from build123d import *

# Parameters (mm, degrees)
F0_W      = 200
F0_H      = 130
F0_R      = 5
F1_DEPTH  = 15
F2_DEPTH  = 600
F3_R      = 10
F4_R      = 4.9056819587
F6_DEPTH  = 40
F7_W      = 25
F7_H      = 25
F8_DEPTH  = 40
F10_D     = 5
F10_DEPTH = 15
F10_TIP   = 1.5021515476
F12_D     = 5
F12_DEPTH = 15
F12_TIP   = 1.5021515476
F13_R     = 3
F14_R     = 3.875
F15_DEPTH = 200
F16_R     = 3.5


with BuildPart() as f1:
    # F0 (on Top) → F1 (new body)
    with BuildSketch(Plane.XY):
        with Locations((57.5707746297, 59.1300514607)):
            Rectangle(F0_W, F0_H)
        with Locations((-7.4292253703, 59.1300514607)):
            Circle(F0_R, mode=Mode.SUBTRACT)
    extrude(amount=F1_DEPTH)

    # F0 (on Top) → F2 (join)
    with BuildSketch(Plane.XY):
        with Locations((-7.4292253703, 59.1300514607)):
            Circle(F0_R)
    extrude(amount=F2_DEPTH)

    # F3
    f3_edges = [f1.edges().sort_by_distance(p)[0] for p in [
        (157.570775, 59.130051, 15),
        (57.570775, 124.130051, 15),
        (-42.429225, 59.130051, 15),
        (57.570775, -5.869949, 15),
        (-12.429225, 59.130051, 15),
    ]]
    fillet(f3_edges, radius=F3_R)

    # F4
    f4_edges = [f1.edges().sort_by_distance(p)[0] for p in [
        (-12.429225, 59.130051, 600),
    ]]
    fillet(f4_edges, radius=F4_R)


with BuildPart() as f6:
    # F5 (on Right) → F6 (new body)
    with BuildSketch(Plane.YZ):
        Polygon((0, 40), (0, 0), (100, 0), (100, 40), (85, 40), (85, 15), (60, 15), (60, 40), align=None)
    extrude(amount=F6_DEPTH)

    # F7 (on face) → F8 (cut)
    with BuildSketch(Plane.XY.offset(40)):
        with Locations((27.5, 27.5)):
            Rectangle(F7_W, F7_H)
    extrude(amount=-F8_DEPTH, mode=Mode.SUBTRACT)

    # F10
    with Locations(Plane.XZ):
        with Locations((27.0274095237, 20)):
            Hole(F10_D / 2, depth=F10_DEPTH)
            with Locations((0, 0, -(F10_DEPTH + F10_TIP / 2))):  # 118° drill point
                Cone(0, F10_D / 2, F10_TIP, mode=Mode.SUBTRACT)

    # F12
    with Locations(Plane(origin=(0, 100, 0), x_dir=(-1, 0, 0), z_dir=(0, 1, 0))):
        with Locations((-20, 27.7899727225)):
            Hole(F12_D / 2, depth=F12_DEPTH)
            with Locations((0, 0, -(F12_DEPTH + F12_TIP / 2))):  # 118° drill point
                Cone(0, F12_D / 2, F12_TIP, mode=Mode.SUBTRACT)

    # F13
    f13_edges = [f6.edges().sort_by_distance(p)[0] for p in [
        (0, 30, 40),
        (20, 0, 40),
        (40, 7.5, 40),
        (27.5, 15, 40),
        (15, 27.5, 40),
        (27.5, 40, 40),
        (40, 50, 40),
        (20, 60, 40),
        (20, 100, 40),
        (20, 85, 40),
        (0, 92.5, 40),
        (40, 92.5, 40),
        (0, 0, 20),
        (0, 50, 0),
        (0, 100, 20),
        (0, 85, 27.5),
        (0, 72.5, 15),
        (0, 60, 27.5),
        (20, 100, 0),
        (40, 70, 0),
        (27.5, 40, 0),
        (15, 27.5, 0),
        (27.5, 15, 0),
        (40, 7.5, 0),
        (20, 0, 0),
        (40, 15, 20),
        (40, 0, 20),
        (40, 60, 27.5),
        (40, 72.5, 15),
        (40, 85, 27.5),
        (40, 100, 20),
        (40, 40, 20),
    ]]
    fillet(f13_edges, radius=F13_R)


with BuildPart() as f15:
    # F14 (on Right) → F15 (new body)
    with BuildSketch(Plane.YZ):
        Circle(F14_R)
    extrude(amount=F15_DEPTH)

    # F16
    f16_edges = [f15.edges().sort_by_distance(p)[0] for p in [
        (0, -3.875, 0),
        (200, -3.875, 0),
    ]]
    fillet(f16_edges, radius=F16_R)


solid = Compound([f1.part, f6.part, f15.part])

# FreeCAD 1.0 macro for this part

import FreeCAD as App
import Part
import Sketcher

V = App.Vector
Q = App.Units.Quantity


def edges_at(feature, points):
    """Names of the edges that pass closest to the given points."""
    edges = feature.Shape.Edges
    near = lambda p: min(range(len(edges)), key=lambda i: edges[i].distToShape(Part.Vertex(*p))[0])
    return sorted({f"Edge{near(p) + 1}" for p in points})

doc = App.newDocument("Part")
body = doc.addObject("PartDesign::Body", "Body")

# Sketch on XY plane
sketch1 = doc.addObject("Sketcher::SketchObject", "Sketch")
body.addObject(sketch1)
sketch1.AttachmentSupport = (doc.XY_Plane, [""])
sketch1.MapMode = "FlatFace"
sketch1.addGeometry(Part.LineSegment(V(-42, 124, 0), V(-42, -6, 0)), False)
sketch1.addGeometry(Part.LineSegment(V(-42, -6, 0), V(158, -6, 0)), False)
sketch1.addGeometry(Part.LineSegment(V(158, -6, 0), V(158, 124, 0)), False)
sketch1.addGeometry(Part.LineSegment(V(158, 124, 0), V(-42, 124, 0)), False)
sketch1.addGeometry(Part.Circle(V(-7, 59, 0), V(0, 0, 1), 5), False)
sketch1.addConstraint(Sketcher.Constraint("Coincident", 0, 2, 1, 1))
sketch1.addConstraint(Sketcher.Constraint("Coincident", 1, 2, 2, 1))
sketch1.addConstraint(Sketcher.Constraint("Coincident", 2, 2, 3, 1))
sketch1.addConstraint(Sketcher.Constraint("Coincident", 3, 2, 0, 1))
sketch1.addConstraint(Sketcher.Constraint("Vertical", 0))
sketch1.addConstraint(Sketcher.Constraint("Horizontal", 1))
sketch1.addConstraint(Sketcher.Constraint("Vertical", 2))
sketch1.addConstraint(Sketcher.Constraint("Horizontal", 3))
sketch1.addConstraint(Sketcher.Constraint("Diameter", 4, Q("10 mm")))
sketch1.addConstraint(Sketcher.Constraint("DistanceX", 1, 1, 1, 2, Q("200 mm")))
sketch1.addConstraint(Sketcher.Constraint("DistanceY", 0, 2, 0, 1, Q("130 mm")))
sketch1.addConstraint(Sketcher.Constraint("DistanceX", 0, 2, 4, 3, Q("35 mm")))
sketch1.addConstraint(Sketcher.Constraint("DistanceY", 0, 2, 4, 3, Q("65 mm")))
sketch1.addConstraint(Sketcher.Constraint("DistanceY", -1, 1, 4, 3, Q("59.130051 mm")))
sketch1.addConstraint(Sketcher.Constraint("DistanceX", 4, 3, -1, 1, Q("7.429225 mm")))
pad1 = doc.addObject("PartDesign::Pad", "Pad")
body.addObject(pad1)
pad1.Profile = sketch1
pad1.Length = 15

# Sketch on XY plane
sketch2 = doc.addObject("Sketcher::SketchObject", "Sketch001")
body.addObject(sketch2)
sketch2.AttachmentSupport = (doc.XY_Plane, [""])
sketch2.MapMode = "FlatFace"
sketch2.addGeometry(Part.Circle(V(-7, 59, 0), V(0, 0, 1), 5), False)
sketch2.addConstraint(Sketcher.Constraint("Diameter", 0, Q("10 mm")))
sketch2.addConstraint(Sketcher.Constraint("DistanceY", -1, 1, 0, 3, Q("59.130051 mm")))
sketch2.addConstraint(Sketcher.Constraint("DistanceX", 0, 3, -1, 1, Q("7.429225 mm")))
pad2 = doc.addObject("PartDesign::Pad", "Pad001")
body.addObject(pad2)
pad2.Profile = sketch2
pad2.Length = 600
doc.recompute()

fillet = doc.addObject("PartDesign::Fillet", "Fillet")
body.addObject(fillet)
fillet.Base = (pad2, edges_at(pad2, [
    (157.571, 59.13, 15),
    (57.571, 124.13, 15),
    (-42.429, 59.13, 15),
    (57.571, -5.87, 15),
    (-12.429, 59.13, 15),
]))
fillet.Radius = 10
doc.recompute()

fillet2 = doc.addObject("PartDesign::Fillet", "Fillet001")
body.addObject(fillet2)
fillet2.Base = (fillet, edges_at(fillet, [(-12.429, 59.13, 600)]))
fillet2.Radius = 4.905682
body2 = doc.addObject("PartDesign::Body", "Body001")

# Sketch on YZ plane
sketch3 = doc.addObject("Sketcher::SketchObject", "Sketch002")
body2.addObject(sketch3)
sketch3.AttachmentSupport = (doc.getObject("YZ_Plane001"), [""])
sketch3.MapMode = "FlatFace"
sketch3.addGeometry(Part.LineSegment(V(0, 40, 0), V(0, 0, 0)), False)
sketch3.addGeometry(Part.LineSegment(V(0, 0, 0), V(100, 0, 0)), False)
sketch3.addGeometry(Part.LineSegment(V(100, 0, 0), V(100, 40, 0)), False)
sketch3.addGeometry(Part.LineSegment(V(100, 40, 0), V(85, 40, 0)), False)
sketch3.addGeometry(Part.LineSegment(V(85, 40, 0), V(85, 15, 0)), False)
sketch3.addGeometry(Part.LineSegment(V(85, 15, 0), V(60, 15, 0)), False)
sketch3.addGeometry(Part.LineSegment(V(60, 15, 0), V(60, 40, 0)), False)
sketch3.addGeometry(Part.LineSegment(V(60, 40, 0), V(0, 40, 0)), False)
sketch3.addConstraint(Sketcher.Constraint("Coincident", 0, 2, 1, 1))
sketch3.addConstraint(Sketcher.Constraint("Coincident", 1, 2, 2, 1))
sketch3.addConstraint(Sketcher.Constraint("Coincident", 2, 2, 3, 1))
sketch3.addConstraint(Sketcher.Constraint("Coincident", 3, 2, 4, 1))
sketch3.addConstraint(Sketcher.Constraint("Coincident", 4, 2, 5, 1))
sketch3.addConstraint(Sketcher.Constraint("Coincident", 5, 2, 6, 1))
sketch3.addConstraint(Sketcher.Constraint("Coincident", 6, 2, 7, 1))
sketch3.addConstraint(Sketcher.Constraint("Coincident", 7, 2, 0, 1))
sketch3.addConstraint(Sketcher.Constraint("Vertical", 0))
sketch3.addConstraint(Sketcher.Constraint("Horizontal", 1))
sketch3.addConstraint(Sketcher.Constraint("Vertical", 2))
sketch3.addConstraint(Sketcher.Constraint("Horizontal", 3))
sketch3.addConstraint(Sketcher.Constraint("Vertical", 4))
sketch3.addConstraint(Sketcher.Constraint("Horizontal", 5))
sketch3.addConstraint(Sketcher.Constraint("Vertical", 6))
sketch3.addConstraint(Sketcher.Constraint("Horizontal", 7))
sketch3.addConstraint(Sketcher.Constraint("Coincident", 0, 2, -1, 1))
sketch3.addConstraint(Sketcher.Constraint("Horizontal", 3, 2, 6, 2))
sketch3.addConstraint(Sketcher.Constraint("Equal", 5, 4))
sketch3.addConstraint(Sketcher.Constraint("DistanceX", 1, 1, 1, 2, Q("100 mm")))
sketch3.addConstraint(Sketcher.Constraint("DistanceX", 3, 2, 3, 1, Q("15 mm")))
sketch3.addConstraint(Sketcher.Constraint("DistanceX", 5, 2, 5, 1, Q("25 mm")))
sketch3.addConstraint(Sketcher.Constraint("DistanceY", 0, 2, 0, 1, Q("40 mm")))
pad3 = doc.addObject("PartDesign::Pad", "Pad002")
body2.addObject(pad3)
pad3.Profile = sketch3
pad3.Length = 40

# Sketch on XY plane
sketch4 = doc.addObject("Sketcher::SketchObject", "Sketch003")
body2.addObject(sketch4)
sketch4.AttachmentSupport = (doc.getObject("XY_Plane001"), [""])
sketch4.MapMode = "FlatFace"
sketch4.AttachmentOffset = App.Placement(V(0, 0, 40), App.Rotation())
sketch4.addGeometry(Part.LineSegment(V(15, 40, 0), V(15, 15, 0)), False)
sketch4.addGeometry(Part.LineSegment(V(15, 15, 0), V(40, 15, 0)), False)
sketch4.addGeometry(Part.LineSegment(V(40, 15, 0), V(40, 40, 0)), False)
sketch4.addGeometry(Part.LineSegment(V(40, 40, 0), V(15, 40, 0)), False)
sketch4.addConstraint(Sketcher.Constraint("Coincident", 0, 2, 1, 1))
sketch4.addConstraint(Sketcher.Constraint("Coincident", 1, 2, 2, 1))
sketch4.addConstraint(Sketcher.Constraint("Coincident", 2, 2, 3, 1))
sketch4.addConstraint(Sketcher.Constraint("Coincident", 3, 2, 0, 1))
sketch4.addConstraint(Sketcher.Constraint("Vertical", 0))
sketch4.addConstraint(Sketcher.Constraint("Horizontal", 1))
sketch4.addConstraint(Sketcher.Constraint("Vertical", 2))
sketch4.addConstraint(Sketcher.Constraint("Horizontal", 3))
sketch4.addConstraint(Sketcher.Constraint("Equal", 3, 0))
sketch4.addConstraint(Sketcher.Constraint("DistanceX", 1, 1, 1, 2, Q("25 mm")))
sketch4.addConstraint(Sketcher.Constraint("DistanceX", -1, 1, 0, 2, Q("15 mm")))
sketch4.addConstraint(Sketcher.Constraint("DistanceY", -1, 1, 0, 2, Q("15 mm")))
pocket1 = doc.addObject("PartDesign::Pocket", "Pocket")
body2.addObject(pocket1)
pocket1.Profile = sketch4
pocket1.Length = 40

# Sketch on XZ plane
sketch5 = doc.addObject("Sketcher::SketchObject", "Sketch004")
body2.addObject(sketch5)
sketch5.AttachmentSupport = (doc.getObject("XZ_Plane001"), [""])
sketch5.MapMode = "FlatFace"
sketch5.addGeometry(Part.Circle(V(27, 20, 0), V(0, 0, 1), 2.5), False)
sketch5.addConstraint(Sketcher.Constraint("Diameter", 0, Q("5 mm")))
sketch5.addConstraint(Sketcher.Constraint("DistanceY", -1, 1, 0, 3, Q("20 mm")))
sketch5.addConstraint(Sketcher.Constraint("DistanceX", -1, 1, 0, 3, Q("27.02741 mm")))
doc.recompute()
hole = doc.addObject("PartDesign::Hole", "Hole")
body2.addObject(hole)
hole.Profile = sketch5
hole.ThreadType = "None"
hole.Diameter = 5
hole.DepthType = "Dimension"
hole.Depth = 15
hole.DrillPoint = "Angled"
hole.DrillPointAngle = 118

# Sketch on XZ plane
sketch6 = doc.addObject("Sketcher::SketchObject", "Sketch005")
body2.addObject(sketch6)
sketch6.AttachmentSupport = (doc.getObject("XZ_Plane001"), [""])
sketch6.MapMode = "FlatFace"
sketch6.AttachmentOffset = App.Placement(V(0, 0, -100), App.Rotation())
sketch6.addGeometry(Part.Circle(V(20, 27.8, 0), V(0, 0, 1), 2.5), False)
sketch6.addConstraint(Sketcher.Constraint("Diameter", 0, Q("5 mm")))
sketch6.addConstraint(Sketcher.Constraint("DistanceX", -1, 1, 0, 3, Q("20 mm")))
sketch6.addConstraint(Sketcher.Constraint("DistanceY", -1, 1, 0, 3, Q("27.789973 mm")))
doc.recompute()
hole2 = doc.addObject("PartDesign::Hole", "Hole001")
body2.addObject(hole2)
hole2.Profile = sketch6
hole2.ThreadType = "None"
hole2.Diameter = 5
hole2.DepthType = "Dimension"
hole2.Depth = 15
hole2.DrillPoint = "Angled"
hole2.DrillPointAngle = 118
hole2.Reversed = True
doc.recompute()

fillet3 = doc.addObject("PartDesign::Fillet", "Fillet002")
body2.addObject(fillet3)
fillet3.Base = (hole2, edges_at(hole2, [
    (0, 30, 40),
    (20, 0, 40),
    (40, 7.5, 40),
    (27.5, 15, 40),
    (15, 27.5, 40),
    (27.5, 40, 40),
    (40, 50, 40),
    (20, 60, 40),
    (20, 100, 40),
    (20, 85, 40),
    (0, 92.5, 40),
    (40, 92.5, 40),
    (0, 0, 20),
    (0, 50, 0),
    (0, 100, 20),
    (0, 85, 27.5),
    (0, 72.5, 15),
    (0, 60, 27.5),
    (20, 100, 0),
    (40, 70, 0),
    (27.5, 40, 0),
    (15, 27.5, 0),
    (27.5, 15, 0),
    (40, 7.5, 0),
    (20, 0, 0),
    (40, 15, 20),
    (40, 0, 20),
    (40, 60, 27.5),
    (40, 72.5, 15),
    (40, 85, 27.5),
    (40, 100, 20),
    (40, 40, 20),
]))
fillet3.Radius = 3
body3 = doc.addObject("PartDesign::Body", "Body002")

# Sketch on YZ plane
sketch7 = doc.addObject("Sketcher::SketchObject", "Sketch006")
body3.addObject(sketch7)
sketch7.AttachmentSupport = (doc.getObject("YZ_Plane002"), [""])
sketch7.MapMode = "FlatFace"
sketch7.addGeometry(Part.Circle(V(0, 0, 0), V(0, 0, 1), 3.9), False)
sketch7.addConstraint(Sketcher.Constraint("Coincident", 0, 3, -1, 1))
sketch7.addConstraint(Sketcher.Constraint("Diameter", 0, Q("7.75 mm")))
pad4 = doc.addObject("PartDesign::Pad", "Pad003")
body3.addObject(pad4)
pad4.Profile = sketch7
pad4.Length = 200
doc.recompute()

fillet4 = doc.addObject("PartDesign::Fillet", "Fillet003")
body3.addObject(fillet4)
fillet4.Base = (pad4, edges_at(pad4, [(0, -3.875, 0), (200, -3.875, 0)]))
fillet4.Radius = 3.5

doc.recompute()
